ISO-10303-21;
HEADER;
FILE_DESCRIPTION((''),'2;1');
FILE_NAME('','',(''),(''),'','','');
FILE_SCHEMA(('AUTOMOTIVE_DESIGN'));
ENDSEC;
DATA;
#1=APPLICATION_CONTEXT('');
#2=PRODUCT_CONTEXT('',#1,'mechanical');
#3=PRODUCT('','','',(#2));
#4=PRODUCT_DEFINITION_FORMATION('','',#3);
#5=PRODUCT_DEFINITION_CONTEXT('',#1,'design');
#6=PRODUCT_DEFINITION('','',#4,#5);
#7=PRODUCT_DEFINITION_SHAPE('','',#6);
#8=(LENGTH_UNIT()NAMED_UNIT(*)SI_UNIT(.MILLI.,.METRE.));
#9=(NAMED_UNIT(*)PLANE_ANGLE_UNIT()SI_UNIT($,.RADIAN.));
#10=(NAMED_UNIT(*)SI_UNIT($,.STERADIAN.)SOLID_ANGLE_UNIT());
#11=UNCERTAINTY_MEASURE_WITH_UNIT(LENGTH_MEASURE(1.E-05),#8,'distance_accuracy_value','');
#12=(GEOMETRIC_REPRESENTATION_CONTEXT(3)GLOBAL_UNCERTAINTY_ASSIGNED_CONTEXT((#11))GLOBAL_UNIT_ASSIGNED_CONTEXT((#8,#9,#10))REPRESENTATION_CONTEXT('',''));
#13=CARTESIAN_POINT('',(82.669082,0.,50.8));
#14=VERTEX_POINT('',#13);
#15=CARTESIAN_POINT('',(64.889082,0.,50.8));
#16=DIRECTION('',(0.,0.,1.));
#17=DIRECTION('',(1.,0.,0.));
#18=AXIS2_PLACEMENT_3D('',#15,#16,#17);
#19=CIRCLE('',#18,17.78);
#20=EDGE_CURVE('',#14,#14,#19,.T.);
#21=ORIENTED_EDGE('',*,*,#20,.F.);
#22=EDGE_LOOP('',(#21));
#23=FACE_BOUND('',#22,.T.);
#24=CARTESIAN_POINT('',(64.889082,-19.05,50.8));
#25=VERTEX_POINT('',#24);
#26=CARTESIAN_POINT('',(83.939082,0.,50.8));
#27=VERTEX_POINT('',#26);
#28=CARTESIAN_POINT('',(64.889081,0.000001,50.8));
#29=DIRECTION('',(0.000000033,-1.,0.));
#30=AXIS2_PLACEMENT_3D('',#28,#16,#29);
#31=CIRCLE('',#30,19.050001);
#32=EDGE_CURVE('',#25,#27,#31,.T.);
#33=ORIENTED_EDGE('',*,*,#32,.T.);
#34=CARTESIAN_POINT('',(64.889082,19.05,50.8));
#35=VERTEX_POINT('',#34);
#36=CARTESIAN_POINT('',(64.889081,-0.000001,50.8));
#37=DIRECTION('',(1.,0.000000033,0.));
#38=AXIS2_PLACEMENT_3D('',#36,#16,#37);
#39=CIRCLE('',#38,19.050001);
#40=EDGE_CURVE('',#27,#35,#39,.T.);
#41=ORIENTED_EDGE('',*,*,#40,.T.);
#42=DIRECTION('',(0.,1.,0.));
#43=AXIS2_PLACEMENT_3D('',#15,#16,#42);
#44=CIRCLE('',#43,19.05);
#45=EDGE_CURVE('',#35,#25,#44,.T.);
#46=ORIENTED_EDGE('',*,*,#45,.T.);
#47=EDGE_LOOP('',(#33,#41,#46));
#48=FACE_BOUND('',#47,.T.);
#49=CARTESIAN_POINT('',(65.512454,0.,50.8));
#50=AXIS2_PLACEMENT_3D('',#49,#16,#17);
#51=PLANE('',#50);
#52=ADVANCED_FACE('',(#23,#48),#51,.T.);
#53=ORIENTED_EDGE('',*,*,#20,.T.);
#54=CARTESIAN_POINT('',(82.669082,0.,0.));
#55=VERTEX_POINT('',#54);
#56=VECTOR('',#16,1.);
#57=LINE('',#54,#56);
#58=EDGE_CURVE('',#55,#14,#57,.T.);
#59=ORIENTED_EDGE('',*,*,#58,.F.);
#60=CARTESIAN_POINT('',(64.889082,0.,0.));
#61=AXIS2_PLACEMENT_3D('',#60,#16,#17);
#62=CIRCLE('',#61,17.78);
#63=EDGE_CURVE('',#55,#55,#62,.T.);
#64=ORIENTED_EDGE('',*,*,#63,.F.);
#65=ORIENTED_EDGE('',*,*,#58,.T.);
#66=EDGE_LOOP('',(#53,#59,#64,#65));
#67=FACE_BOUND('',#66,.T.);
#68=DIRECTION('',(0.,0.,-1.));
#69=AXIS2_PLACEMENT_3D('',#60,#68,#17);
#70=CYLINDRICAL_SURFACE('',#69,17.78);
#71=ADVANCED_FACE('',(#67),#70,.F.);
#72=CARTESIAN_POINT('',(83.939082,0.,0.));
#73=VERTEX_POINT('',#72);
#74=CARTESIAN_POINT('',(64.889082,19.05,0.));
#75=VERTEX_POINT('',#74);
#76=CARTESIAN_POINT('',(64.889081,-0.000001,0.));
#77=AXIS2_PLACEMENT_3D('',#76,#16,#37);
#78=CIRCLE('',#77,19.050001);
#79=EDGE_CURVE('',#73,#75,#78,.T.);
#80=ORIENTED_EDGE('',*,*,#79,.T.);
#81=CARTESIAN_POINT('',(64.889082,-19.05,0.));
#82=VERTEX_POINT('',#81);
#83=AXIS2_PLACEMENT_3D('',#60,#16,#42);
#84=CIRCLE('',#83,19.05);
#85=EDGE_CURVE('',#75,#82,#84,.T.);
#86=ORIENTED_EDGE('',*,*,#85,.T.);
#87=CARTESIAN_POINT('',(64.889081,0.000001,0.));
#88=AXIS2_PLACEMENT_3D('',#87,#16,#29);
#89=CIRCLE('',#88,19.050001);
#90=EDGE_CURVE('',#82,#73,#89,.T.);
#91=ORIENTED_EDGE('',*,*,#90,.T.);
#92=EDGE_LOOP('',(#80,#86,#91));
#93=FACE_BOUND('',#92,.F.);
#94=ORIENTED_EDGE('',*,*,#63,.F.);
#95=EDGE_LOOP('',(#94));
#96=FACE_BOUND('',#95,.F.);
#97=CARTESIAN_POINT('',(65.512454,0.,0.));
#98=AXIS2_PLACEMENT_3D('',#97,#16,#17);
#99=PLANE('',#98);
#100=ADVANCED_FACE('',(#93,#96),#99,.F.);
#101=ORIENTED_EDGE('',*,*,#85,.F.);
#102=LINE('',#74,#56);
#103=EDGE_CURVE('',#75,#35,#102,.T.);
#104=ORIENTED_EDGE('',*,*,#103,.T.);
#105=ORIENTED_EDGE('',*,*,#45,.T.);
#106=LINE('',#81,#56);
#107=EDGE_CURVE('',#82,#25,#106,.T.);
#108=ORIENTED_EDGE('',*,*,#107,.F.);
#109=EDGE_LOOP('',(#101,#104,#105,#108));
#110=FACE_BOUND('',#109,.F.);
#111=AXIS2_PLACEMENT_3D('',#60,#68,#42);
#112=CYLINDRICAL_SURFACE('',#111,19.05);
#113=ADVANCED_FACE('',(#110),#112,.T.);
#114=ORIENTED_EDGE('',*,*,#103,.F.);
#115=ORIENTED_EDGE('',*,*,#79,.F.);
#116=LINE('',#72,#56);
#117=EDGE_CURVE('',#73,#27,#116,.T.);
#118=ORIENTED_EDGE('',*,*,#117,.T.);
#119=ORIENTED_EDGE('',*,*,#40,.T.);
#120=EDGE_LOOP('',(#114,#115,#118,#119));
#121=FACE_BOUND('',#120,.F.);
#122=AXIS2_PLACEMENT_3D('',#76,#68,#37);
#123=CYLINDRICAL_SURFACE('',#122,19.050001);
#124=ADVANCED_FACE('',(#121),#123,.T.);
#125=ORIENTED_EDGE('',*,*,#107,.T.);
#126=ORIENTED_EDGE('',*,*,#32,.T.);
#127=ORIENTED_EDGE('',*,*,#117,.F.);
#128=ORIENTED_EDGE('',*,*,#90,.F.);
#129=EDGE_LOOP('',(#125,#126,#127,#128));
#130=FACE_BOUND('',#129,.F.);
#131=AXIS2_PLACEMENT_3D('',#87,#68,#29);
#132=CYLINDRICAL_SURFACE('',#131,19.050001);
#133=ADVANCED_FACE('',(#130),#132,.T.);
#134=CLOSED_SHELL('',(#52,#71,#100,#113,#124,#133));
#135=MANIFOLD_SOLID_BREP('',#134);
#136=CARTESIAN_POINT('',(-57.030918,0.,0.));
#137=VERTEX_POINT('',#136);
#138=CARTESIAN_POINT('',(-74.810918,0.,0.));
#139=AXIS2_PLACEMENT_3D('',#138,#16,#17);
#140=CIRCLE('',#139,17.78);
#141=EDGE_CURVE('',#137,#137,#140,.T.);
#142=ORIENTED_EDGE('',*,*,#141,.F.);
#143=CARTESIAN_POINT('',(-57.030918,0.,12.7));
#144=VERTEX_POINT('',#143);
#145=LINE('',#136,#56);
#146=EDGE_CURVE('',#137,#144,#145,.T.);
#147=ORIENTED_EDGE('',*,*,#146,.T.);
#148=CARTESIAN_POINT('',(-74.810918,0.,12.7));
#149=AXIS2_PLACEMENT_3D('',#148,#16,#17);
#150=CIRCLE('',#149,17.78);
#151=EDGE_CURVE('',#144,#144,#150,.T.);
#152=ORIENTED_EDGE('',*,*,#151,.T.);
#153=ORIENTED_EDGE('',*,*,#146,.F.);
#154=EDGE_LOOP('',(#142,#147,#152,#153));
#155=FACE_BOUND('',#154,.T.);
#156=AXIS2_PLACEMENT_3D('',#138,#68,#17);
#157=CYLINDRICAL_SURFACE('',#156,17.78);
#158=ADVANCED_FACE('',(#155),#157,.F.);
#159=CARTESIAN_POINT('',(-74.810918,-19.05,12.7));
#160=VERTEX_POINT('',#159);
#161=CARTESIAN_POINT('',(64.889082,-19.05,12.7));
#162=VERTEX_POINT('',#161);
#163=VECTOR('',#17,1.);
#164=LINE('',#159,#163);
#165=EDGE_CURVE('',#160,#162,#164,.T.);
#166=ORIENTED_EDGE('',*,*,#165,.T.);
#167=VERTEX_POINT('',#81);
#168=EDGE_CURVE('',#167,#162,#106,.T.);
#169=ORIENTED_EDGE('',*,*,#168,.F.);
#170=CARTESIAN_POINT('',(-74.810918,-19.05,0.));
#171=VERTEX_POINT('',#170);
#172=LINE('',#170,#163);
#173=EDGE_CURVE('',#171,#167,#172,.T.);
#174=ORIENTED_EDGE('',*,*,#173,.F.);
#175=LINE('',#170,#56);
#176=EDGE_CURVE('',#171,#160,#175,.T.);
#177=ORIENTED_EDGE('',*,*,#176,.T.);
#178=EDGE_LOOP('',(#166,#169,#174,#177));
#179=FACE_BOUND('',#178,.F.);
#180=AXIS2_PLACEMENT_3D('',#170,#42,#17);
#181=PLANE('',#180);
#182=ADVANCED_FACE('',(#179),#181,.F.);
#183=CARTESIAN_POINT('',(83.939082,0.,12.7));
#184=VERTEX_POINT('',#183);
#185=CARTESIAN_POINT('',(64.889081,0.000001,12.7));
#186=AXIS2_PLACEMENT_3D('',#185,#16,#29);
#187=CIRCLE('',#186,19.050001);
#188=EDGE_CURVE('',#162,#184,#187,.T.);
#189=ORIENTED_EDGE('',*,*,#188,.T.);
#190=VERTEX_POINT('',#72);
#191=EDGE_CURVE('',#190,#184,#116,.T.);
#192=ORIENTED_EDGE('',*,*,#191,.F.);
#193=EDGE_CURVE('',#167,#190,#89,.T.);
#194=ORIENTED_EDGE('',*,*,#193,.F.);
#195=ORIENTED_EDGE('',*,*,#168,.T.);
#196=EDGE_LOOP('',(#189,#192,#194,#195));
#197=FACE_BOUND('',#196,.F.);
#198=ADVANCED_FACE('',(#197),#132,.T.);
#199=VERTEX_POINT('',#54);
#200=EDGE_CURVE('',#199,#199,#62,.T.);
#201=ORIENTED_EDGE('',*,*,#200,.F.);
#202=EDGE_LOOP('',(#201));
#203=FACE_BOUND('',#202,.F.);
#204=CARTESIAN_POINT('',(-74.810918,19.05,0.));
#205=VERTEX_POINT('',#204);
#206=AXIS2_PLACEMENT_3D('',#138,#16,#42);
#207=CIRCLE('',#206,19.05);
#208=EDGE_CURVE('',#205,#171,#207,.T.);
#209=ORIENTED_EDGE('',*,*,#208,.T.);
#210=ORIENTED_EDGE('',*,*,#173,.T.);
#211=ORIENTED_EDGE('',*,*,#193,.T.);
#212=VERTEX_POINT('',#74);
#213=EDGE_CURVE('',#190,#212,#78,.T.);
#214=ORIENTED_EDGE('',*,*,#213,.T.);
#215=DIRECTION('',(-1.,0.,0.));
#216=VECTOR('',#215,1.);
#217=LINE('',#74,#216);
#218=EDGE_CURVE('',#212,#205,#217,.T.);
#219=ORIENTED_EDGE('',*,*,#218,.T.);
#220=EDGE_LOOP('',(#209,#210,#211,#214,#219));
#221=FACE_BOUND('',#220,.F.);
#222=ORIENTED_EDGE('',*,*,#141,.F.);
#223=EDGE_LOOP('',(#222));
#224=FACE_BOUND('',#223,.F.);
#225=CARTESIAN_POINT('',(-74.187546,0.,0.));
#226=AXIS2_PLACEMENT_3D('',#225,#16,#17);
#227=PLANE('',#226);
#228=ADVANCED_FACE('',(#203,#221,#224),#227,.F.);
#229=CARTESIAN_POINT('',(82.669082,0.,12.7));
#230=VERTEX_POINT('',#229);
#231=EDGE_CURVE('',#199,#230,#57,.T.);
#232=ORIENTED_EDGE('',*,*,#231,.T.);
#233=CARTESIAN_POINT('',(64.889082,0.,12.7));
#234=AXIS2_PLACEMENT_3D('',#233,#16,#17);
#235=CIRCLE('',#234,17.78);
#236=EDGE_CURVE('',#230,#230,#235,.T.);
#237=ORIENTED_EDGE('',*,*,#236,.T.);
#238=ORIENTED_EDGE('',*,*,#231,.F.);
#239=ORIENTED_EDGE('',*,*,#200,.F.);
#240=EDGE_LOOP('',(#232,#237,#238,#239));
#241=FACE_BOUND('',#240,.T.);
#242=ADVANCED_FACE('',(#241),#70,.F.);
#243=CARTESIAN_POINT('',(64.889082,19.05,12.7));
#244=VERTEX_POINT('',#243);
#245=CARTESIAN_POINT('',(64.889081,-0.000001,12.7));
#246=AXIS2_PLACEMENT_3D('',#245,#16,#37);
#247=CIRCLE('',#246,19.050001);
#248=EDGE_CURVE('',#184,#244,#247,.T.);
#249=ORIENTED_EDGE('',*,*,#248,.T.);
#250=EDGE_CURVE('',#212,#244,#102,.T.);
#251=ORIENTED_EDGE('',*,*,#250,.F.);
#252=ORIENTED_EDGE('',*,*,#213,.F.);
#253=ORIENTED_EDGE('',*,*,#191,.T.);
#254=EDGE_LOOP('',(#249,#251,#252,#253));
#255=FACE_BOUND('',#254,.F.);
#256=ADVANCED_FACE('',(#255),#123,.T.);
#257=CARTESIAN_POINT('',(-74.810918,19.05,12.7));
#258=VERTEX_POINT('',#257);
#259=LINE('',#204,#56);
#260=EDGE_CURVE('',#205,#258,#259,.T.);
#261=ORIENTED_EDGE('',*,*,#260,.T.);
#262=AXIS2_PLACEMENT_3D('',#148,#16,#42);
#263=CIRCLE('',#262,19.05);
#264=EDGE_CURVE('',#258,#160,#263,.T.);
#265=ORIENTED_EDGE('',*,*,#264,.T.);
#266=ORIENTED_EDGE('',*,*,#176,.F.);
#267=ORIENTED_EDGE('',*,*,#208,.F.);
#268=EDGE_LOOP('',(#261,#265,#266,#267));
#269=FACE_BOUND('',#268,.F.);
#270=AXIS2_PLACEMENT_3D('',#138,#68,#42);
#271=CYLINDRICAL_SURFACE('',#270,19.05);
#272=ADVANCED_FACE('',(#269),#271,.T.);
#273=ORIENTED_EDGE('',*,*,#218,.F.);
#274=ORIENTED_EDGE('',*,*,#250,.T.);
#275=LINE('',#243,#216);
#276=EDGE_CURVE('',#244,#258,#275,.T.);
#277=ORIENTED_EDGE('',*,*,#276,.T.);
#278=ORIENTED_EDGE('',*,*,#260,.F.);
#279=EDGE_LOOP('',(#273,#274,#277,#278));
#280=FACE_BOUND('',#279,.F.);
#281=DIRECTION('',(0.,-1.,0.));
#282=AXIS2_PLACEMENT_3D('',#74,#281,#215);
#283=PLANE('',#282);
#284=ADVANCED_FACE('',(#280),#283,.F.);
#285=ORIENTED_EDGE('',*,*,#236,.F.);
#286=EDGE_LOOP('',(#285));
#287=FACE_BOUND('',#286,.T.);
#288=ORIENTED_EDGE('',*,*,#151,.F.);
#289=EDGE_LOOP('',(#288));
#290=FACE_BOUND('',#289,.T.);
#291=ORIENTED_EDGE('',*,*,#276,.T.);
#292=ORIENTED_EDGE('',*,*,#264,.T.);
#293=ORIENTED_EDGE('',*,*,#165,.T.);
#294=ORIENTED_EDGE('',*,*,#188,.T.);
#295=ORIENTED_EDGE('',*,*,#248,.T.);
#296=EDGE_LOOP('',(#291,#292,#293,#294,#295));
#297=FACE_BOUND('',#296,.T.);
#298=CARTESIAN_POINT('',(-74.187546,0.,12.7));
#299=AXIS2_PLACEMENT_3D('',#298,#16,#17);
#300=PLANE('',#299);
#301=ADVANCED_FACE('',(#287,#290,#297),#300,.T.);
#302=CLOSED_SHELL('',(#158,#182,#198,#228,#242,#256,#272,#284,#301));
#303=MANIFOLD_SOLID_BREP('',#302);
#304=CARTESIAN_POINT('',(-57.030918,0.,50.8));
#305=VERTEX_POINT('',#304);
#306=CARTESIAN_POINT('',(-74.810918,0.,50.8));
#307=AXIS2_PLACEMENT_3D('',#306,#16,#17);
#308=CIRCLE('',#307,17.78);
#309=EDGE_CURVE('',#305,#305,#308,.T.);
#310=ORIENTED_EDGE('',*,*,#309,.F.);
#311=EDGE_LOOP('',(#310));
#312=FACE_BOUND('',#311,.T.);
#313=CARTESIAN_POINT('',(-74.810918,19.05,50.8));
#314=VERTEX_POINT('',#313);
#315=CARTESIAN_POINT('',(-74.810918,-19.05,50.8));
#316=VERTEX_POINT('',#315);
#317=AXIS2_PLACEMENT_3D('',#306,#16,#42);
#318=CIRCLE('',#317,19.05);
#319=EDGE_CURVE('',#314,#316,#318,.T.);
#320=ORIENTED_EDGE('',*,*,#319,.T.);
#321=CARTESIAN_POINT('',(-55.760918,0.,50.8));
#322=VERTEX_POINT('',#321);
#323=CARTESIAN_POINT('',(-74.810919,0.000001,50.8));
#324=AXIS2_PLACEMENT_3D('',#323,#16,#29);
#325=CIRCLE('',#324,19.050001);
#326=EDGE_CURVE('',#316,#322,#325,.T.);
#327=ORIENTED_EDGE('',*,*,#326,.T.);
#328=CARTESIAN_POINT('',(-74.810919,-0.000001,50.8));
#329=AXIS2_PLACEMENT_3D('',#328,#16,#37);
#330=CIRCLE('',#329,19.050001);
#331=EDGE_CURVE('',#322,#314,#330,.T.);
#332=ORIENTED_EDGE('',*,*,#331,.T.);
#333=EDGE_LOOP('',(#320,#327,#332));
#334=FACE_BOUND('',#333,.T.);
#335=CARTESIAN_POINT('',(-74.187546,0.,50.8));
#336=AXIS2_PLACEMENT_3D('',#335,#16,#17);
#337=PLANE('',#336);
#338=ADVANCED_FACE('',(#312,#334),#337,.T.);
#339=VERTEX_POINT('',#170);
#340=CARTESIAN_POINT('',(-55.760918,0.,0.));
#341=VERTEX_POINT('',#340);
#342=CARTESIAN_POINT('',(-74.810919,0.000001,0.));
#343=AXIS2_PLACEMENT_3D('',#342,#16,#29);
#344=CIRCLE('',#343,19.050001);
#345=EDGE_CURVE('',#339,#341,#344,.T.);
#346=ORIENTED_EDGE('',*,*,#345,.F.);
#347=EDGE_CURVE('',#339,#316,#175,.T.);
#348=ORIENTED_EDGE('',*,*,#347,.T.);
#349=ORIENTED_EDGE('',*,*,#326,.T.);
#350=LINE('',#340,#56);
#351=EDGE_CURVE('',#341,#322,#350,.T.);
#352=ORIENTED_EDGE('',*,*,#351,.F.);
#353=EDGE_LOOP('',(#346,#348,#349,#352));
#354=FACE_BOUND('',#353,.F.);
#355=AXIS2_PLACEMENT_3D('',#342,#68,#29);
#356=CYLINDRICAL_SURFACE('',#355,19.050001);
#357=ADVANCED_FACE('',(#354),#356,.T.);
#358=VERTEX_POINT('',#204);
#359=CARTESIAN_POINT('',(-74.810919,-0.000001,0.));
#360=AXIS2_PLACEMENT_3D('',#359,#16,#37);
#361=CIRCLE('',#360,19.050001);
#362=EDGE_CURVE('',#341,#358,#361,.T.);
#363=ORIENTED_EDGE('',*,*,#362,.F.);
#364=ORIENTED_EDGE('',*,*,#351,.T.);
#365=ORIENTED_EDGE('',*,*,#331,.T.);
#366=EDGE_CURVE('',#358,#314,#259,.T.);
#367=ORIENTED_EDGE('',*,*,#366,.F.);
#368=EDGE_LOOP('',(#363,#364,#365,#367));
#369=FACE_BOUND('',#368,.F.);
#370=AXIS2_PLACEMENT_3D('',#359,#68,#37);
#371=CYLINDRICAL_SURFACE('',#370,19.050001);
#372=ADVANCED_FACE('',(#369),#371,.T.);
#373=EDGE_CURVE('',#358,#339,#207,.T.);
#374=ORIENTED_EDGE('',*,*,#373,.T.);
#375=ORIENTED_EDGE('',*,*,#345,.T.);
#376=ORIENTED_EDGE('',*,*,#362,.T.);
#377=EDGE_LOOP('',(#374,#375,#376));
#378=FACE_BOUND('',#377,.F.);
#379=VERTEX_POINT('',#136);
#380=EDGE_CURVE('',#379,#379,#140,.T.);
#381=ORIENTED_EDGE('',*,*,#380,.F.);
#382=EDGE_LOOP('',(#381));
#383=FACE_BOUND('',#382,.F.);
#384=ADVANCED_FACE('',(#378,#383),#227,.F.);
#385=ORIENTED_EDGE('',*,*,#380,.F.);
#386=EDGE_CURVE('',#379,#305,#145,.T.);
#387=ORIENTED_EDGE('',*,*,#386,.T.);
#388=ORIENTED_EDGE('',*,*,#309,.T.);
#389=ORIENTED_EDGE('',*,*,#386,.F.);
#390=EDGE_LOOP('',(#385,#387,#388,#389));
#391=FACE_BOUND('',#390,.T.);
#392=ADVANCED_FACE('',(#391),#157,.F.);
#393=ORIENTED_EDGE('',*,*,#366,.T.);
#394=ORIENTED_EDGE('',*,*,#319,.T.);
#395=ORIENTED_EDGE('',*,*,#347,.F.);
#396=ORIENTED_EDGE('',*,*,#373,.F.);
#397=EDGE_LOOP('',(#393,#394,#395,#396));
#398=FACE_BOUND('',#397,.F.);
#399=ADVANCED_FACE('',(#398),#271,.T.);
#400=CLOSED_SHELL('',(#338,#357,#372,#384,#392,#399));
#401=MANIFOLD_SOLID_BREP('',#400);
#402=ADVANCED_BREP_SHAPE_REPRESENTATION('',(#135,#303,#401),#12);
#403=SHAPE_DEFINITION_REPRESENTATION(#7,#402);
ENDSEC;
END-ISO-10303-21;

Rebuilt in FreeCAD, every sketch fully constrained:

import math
import FreeCAD as App
import Part
import Sketcher
Q = App.Units.Quantity

doc = App.newDocument("Part")
body = doc.addObject("PartDesign::Body", "Body")
body.AllowCompound = True

# Sketch on XY plane
sketch1 = doc.addObject("Sketcher::SketchObject", "Sketch")
body.addObject(sketch1)
sketch1.AttachmentSupport = (doc.XY_Plane, [""])
sketch1.MapMode = "FlatFace"
sketch1.addGeometry([
    Part.ArcOfCircle(Part.Circle(App.Vector(-74.810919, 0.000001, 0), App.Vector(0, 0, 1), 19.050001), math.radians(-89.999998), math.radians(-0.000002)),  # 0
    Part.ArcOfCircle(Part.Circle(App.Vector(-74.810919, -0.000001, 0), App.Vector(0, 0, 1), 19.050001), math.radians(0.000002), math.radians(89.999998)),  # 1
    Part.ArcOfCircle(Part.Circle(App.Vector(-74.810918, 0, 0), App.Vector(0, 0, 1), 19.05), math.radians(90), math.radians(270)),  # 2
    Part.Circle(App.Vector(-74.810918, 0, 0), App.Vector(0, 0, 1), 17.78),  # 3
    Part.ArcOfCircle(Part.Circle(App.Vector(64.889081, -0.000001, 0), App.Vector(0, 0, 1), 19.050001), math.radians(0.000002), math.radians(89.999998)),  # 4
    Part.ArcOfCircle(Part.Circle(App.Vector(64.889082, 0, 0), App.Vector(0, 0, 1), 19.05), math.radians(90), math.radians(270)),  # 5
    Part.ArcOfCircle(Part.Circle(App.Vector(64.889081, 0.000001, 0), App.Vector(0, 0, 1), 19.050001), math.radians(-89.999998), math.radians(-0.000002)),  # 6
    Part.Circle(App.Vector(64.889082, 0, 0), App.Vector(0, 0, 1), 17.78),  # 7
], False)
sketch1.addConstraint([
    Sketcher.Constraint("Tangent", 0, 2, 1, 1),
    Sketcher.Constraint("Tangent", 1, 2, 2, 1),
    Sketcher.Constraint("Tangent", 2, 2, 0, 1),
    Sketcher.Constraint("Tangent", 4, 2, 5, 1),
    Sketcher.Constraint("Tangent", 5, 2, 6, 1),
    Sketcher.Constraint("Tangent", 6, 2, 4, 1),
    Sketcher.Constraint("Coincident", 3, 3, 0, 3),
    Sketcher.Constraint("Coincident", 7, 3, 4, 3),
    Sketcher.Constraint("Equal", 2, 4),
    Sketcher.Constraint("Equal", 3, 7),
    Sketcher.Constraint("Symmetric", 1, 2, 2, 2, -1),
    Sketcher.Constraint("Symmetric", 4, 2, 5, 2, -1),
    Sketcher.Constraint("PointOnObject", 0, 2, -1),
    Sketcher.Constraint("PointOnObject", 6, 2, -1),
    Sketcher.Constraint("Vertical", 3, 3, 1, 2),
    Sketcher.Constraint("Vertical", 7, 3, 4, 2),
    Sketcher.Constraint("Diameter", 3, Q("1.4 in")),
    Sketcher.Constraint("Radius", 0, Q("0.75 in")),
    Sketcher.Constraint("DistanceX", 2, 3, 4, 3, Q("5.5 in")),
    Sketcher.Constraint("DistanceX", 0, 3, -1, 1, Q("74.810919 mm")),
])
pad1 = doc.addObject("PartDesign::Pad", "Pad")
body.addObject(pad1)
pad1.Profile = sketch1
pad1.Length = Q("2 in")
body2 = doc.addObject("PartDesign::Body", "Body001")

# Sketch on XY plane
sketch2 = doc.addObject("Sketcher::SketchObject", "Sketch001")
body2.addObject(sketch2)
sketch2.AttachmentSupport = (doc.getObject("XY_Plane001"), [""])
sketch2.MapMode = "FlatFace"
sketch2.addGeometry([
    Part.ArcOfCircle(Part.Circle(App.Vector(-74.810918, 0, 0), App.Vector(0, 0, 1), 19.05), math.radians(90), math.radians(270)),  # 0
    Part.LineSegment(App.Vector(-74.810918, -19.05, 0), App.Vector(64.889082, -19.05, 0)),  # 1
    Part.ArcOfCircle(Part.Circle(App.Vector(64.889081, 0.000001, 0), App.Vector(0, 0, 1), 19.050001), math.radians(-89.999998), math.radians(-0.000002)),  # 2
    Part.ArcOfCircle(Part.Circle(App.Vector(64.889081, -0.000001, 0), App.Vector(0, 0, 1), 19.050001), math.radians(0.000002), math.radians(89.999998)),  # 3
    Part.LineSegment(App.Vector(64.889082, 19.05, 0), App.Vector(-74.810918, 19.05, 0)),  # 4
    Part.Circle(App.Vector(-74.810918, 0, 0), App.Vector(0, 0, 1), 17.78),  # 5
    Part.Circle(App.Vector(64.889082, 0, 0), App.Vector(0, 0, 1), 17.78),  # 6
], False)
sketch2.addConstraint([
    Sketcher.Constraint("Tangent", 0, 2, 1, 1),
    Sketcher.Constraint("Tangent", 1, 2, 2, 1),
    Sketcher.Constraint("Tangent", 2, 2, 3, 1),
    Sketcher.Constraint("Tangent", 3, 2, 4, 1),
    Sketcher.Constraint("Tangent", 4, 2, 0, 1),
    Sketcher.Constraint("Horizontal", 1),
    Sketcher.Constraint("Horizontal", 4),
    Sketcher.Constraint("Coincident", 5, 3, 0, 3),
    Sketcher.Constraint("Coincident", 6, 3, 2, 3),
    Sketcher.Constraint("Equal", 0, 2),
    Sketcher.Constraint("Equal", 5, 6),
    Sketcher.Constraint("PointOnObject", 0, 3, -1),
    Sketcher.Constraint("PointOnObject", 2, 2, -1),
    Sketcher.Constraint("Diameter", 5, Q("1.4 in")),
    Sketcher.Constraint("Radius", 0, Q("0.75 in")),
    Sketcher.Constraint("DistanceX", 1, 1, 1, 2, Q("5.5 in")),
    Sketcher.Constraint("DistanceX", 0, 3, -1, 1, Q("74.810918 mm")),
])
pad2 = doc.addObject("PartDesign::Pad", "Pad001")
body2.addObject(pad2)
pad2.Profile = sketch2
pad2.Length = Q("0.5 in")

doc.recompute()
